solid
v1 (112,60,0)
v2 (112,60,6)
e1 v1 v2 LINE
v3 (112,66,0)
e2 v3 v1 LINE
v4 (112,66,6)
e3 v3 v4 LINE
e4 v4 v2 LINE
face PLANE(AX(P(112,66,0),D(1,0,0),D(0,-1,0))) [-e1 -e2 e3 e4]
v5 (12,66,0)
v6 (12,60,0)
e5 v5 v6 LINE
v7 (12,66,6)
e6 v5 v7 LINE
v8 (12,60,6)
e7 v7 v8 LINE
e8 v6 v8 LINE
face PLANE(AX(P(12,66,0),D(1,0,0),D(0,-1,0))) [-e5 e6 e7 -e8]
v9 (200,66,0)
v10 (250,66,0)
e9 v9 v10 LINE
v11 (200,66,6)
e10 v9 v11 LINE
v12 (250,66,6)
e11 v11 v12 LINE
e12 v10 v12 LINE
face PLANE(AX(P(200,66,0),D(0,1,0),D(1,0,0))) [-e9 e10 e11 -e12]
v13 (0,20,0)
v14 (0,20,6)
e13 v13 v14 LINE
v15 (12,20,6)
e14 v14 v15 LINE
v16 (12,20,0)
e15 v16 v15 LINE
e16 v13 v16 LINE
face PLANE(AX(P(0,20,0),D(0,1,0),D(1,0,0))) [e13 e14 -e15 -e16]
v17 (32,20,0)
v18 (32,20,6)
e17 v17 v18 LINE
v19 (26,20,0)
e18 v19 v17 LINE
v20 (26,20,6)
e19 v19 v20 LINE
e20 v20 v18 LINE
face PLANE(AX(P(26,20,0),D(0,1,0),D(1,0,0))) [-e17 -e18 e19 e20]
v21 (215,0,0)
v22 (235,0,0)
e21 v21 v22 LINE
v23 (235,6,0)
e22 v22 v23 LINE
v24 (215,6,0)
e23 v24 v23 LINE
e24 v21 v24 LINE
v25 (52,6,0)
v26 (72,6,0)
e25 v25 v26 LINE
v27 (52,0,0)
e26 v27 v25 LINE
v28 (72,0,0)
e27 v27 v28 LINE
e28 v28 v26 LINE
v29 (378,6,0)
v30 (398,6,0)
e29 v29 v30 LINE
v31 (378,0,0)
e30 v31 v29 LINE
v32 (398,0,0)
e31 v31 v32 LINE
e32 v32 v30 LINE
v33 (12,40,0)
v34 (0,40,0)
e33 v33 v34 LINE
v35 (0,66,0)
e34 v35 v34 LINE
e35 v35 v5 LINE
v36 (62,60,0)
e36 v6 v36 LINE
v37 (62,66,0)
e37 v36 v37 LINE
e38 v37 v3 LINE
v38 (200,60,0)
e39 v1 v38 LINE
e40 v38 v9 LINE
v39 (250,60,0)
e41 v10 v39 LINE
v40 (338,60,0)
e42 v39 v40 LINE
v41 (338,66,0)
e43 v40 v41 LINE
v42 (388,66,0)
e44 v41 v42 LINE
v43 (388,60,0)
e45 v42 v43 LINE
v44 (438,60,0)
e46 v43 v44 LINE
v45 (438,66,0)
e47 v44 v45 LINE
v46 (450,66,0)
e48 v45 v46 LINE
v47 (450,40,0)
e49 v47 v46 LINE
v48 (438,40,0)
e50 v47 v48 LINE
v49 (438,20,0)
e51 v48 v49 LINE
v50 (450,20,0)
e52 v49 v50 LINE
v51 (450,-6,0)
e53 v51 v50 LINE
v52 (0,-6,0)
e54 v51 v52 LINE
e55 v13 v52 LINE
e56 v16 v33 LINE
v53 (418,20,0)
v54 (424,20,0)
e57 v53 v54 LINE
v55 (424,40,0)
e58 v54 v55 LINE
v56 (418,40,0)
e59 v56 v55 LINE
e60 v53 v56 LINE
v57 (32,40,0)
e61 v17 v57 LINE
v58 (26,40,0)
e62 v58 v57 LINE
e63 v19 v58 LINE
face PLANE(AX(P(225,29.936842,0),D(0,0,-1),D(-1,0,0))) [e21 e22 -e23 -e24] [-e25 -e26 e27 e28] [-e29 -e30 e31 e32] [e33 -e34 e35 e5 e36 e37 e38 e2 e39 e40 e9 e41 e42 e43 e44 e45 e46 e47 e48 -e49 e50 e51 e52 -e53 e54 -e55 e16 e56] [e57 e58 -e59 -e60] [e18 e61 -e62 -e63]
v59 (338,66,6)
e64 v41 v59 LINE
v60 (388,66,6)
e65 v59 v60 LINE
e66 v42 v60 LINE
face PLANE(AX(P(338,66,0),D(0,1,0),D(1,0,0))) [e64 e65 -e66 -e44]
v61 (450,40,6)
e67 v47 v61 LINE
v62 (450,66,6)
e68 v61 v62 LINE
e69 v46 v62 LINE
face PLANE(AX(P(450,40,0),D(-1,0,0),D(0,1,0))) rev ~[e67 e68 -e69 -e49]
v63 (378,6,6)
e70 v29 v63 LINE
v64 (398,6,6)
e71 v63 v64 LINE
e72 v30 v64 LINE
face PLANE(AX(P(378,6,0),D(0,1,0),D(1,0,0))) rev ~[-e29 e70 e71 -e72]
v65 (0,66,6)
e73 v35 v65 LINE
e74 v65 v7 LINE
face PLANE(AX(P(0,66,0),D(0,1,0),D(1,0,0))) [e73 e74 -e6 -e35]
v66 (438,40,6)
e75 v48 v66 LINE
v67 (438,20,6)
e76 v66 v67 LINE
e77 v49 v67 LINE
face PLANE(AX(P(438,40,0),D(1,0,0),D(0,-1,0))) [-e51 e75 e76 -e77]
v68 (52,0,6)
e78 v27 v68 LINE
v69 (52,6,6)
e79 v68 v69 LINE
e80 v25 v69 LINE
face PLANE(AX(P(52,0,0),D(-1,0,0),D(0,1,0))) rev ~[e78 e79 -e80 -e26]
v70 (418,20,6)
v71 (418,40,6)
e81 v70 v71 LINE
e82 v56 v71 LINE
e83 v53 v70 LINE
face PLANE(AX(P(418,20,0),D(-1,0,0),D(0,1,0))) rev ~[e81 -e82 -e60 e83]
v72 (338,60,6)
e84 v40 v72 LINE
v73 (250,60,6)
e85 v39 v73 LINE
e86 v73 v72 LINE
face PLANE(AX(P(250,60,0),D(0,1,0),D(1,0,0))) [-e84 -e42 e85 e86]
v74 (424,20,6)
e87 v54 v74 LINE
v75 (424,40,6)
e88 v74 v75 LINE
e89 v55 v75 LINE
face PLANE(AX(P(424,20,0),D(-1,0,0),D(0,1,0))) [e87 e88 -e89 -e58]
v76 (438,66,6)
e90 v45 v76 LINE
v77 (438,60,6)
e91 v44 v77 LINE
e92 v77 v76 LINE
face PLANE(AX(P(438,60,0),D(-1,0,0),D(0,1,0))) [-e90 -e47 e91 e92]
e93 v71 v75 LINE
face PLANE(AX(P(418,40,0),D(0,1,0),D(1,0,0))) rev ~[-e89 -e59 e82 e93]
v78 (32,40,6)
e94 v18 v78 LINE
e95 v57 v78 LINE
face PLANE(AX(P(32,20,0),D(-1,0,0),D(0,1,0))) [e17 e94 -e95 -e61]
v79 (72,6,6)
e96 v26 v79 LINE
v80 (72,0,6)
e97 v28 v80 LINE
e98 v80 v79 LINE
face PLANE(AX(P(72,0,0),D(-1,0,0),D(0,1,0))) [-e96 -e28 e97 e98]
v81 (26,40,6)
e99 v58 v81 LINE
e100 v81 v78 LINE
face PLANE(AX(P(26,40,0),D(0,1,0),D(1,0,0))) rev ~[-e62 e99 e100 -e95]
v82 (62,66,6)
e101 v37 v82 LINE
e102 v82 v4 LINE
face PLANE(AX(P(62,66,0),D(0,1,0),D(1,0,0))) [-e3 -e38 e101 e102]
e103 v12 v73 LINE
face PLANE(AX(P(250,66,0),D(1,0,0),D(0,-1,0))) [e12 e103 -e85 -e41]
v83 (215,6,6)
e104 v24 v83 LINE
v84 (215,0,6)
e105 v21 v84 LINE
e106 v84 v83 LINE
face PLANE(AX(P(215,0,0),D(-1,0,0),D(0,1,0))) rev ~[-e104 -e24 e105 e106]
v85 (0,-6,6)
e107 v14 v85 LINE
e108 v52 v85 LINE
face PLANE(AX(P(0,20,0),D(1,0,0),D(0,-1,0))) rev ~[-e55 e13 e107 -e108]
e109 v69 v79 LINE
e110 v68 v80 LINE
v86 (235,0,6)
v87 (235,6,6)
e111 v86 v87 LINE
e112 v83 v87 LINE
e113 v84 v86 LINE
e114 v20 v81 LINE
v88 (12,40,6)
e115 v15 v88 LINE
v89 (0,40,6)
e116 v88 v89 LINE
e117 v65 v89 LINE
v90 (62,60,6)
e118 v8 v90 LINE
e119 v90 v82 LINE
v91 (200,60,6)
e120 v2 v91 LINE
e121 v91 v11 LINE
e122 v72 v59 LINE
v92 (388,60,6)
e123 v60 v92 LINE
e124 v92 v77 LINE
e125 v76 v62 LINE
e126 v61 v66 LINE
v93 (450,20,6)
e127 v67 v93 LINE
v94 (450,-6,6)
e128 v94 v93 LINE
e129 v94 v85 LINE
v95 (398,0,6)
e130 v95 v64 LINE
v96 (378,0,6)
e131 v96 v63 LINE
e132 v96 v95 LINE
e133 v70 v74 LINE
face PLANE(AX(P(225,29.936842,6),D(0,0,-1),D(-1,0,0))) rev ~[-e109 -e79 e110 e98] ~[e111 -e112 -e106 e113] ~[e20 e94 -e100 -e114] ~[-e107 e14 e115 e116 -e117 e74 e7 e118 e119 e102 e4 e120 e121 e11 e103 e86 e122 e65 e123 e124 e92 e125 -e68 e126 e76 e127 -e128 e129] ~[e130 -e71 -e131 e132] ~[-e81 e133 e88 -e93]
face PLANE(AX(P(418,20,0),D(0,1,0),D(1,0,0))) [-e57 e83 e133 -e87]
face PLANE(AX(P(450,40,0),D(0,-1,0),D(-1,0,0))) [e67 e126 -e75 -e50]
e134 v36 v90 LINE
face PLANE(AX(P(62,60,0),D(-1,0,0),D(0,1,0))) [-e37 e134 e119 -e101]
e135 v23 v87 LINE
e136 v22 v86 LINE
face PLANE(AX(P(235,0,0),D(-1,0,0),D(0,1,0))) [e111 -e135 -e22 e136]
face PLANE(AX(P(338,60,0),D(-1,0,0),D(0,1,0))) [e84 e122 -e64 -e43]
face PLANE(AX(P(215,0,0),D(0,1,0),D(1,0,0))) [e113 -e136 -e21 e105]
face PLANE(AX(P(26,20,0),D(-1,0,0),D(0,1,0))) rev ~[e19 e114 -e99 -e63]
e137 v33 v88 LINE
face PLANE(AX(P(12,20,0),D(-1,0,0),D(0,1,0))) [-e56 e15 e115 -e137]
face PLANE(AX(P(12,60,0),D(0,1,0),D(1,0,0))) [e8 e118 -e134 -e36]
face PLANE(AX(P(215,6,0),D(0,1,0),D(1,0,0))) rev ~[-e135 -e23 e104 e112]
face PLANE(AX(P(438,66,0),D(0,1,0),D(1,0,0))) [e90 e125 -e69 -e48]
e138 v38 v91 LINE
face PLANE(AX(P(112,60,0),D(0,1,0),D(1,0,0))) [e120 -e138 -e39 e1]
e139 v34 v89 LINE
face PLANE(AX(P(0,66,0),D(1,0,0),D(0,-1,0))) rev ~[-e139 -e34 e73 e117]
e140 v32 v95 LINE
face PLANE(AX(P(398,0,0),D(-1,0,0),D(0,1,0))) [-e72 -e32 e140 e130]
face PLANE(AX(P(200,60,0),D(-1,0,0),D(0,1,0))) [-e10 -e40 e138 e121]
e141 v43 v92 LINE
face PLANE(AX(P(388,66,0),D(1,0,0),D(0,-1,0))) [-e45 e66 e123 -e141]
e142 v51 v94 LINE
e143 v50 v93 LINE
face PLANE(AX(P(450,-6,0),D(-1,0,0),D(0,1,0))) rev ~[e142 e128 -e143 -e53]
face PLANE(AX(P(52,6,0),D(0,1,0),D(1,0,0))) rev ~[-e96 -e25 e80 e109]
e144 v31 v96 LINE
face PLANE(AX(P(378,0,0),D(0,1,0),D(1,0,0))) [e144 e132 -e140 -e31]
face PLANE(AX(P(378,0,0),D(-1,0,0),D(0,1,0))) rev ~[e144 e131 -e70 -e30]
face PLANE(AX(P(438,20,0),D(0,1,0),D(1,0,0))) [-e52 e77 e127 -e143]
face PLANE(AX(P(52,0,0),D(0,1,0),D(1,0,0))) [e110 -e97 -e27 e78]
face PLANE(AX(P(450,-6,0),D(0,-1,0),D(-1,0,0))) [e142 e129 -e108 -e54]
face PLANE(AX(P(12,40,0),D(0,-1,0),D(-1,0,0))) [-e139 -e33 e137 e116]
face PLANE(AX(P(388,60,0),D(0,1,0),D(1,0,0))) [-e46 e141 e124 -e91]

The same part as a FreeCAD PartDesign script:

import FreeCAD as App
import Part
import Sketcher
Q = App.Units.Quantity

doc = App.newDocument("Part")
params = doc.addObject("Spreadsheet::Sheet", "Params")
for row, (alias, value) in enumerate([
    ("sketch1_width", "12 mm"),
    ("sketch1_width2", "450 mm"),
    ("sketch1_width3", "50 mm"),
    ("sketch1_width4", "20 mm"),
    ("sketch1_width5", "6 mm"),
    ("pad1_length", "6 mm"),
], start=1):
    params.set(f"A{row}", alias)
    params.set(f"B{row}", "=" + value)
    params.setAlias(f"B{row}", alias)

body = doc.addObject("PartDesign::Body", "Body")

sketch1 = doc.addObject("Sketcher::SketchObject", "Sketch")
body.addObject(sketch1)
sketch1.AttachmentSupport = (doc.XY_Plane, [""])
sketch1.MapMode = "FlatFace"
sketch1.addGeometry([
    Part.LineSegment(App.Vector(0, 66, 0), App.Vector(0, 40, 0)),
    Part.LineSegment(App.Vector(0, 40, 0), App.Vector(12, 40, 0)),
    Part.LineSegment(App.Vector(12, 40, 0), App.Vector(12, 20, 0)),
    Part.LineSegment(App.Vector(12, 20, 0), App.Vector(0, 20, 0)),
    Part.LineSegment(App.Vector(0, 20, 0), App.Vector(0, -6, 0)),
    Part.LineSegment(App.Vector(0, -6, 0), App.Vector(450, -6, 0)),
    Part.LineSegment(App.Vector(450, -6, 0), App.Vector(450, 20, 0)),
    Part.LineSegment(App.Vector(450, 20, 0), App.Vector(438, 20, 0)),
    Part.LineSegment(App.Vector(438, 20, 0), App.Vector(438, 40, 0)),
    Part.LineSegment(App.Vector(438, 40, 0), App.Vector(450, 40, 0)),
    Part.LineSegment(App.Vector(450, 40, 0), App.Vector(450, 66, 0)),
    Part.LineSegment(App.Vector(450, 66, 0), App.Vector(438, 66, 0)),
    Part.LineSegment(App.Vector(438, 66, 0), App.Vector(438, 60, 0)),
    Part.LineSegment(App.Vector(438, 60, 0), App.Vector(388, 60, 0)),
    Part.LineSegment(App.Vector(388, 60, 0), App.Vector(388, 66, 0)),
    Part.LineSegment(App.Vector(388, 66, 0), App.Vector(338, 66, 0)),
    Part.LineSegment(App.Vector(338, 66, 0), App.Vector(338, 60, 0)),
    Part.LineSegment(App.Vector(338, 60, 0), App.Vector(250, 60, 0)),
    Part.LineSegment(App.Vector(250, 60, 0), App.Vector(250, 66, 0)),
    Part.LineSegment(App.Vector(250, 66, 0), App.Vector(200, 66, 0)),
    Part.LineSegment(App.Vector(200, 66, 0), App.Vector(200, 60, 0)),
    Part.LineSegment(App.Vector(200, 60, 0), App.Vector(112, 60, 0)),
    Part.LineSegment(App.Vector(112, 60, 0), App.Vector(112, 66, 0)),
    Part.LineSegment(App.Vector(112, 66, 0), App.Vector(62, 66, 0)),
    Part.LineSegment(App.Vector(62, 66, 0), App.Vector(62, 60, 0)),
    Part.LineSegment(App.Vector(62, 60, 0), App.Vector(12, 60, 0)),
    Part.LineSegment(App.Vector(12, 60, 0), App.Vector(12, 66, 0)),
    Part.LineSegment(App.Vector(12, 66, 0), App.Vector(0, 66, 0)),
    Part.LineSegment(App.Vector(378, 0, 0), App.Vector(378, 6, 0)),
    Part.LineSegment(App.Vector(378, 6, 0), App.Vector(398, 6, 0)),
    Part.LineSegment(App.Vector(398, 6, 0), App.Vector(398, 0, 0)),
    Part.LineSegment(App.Vector(398, 0, 0), App.Vector(378, 0, 0)),
    Part.LineSegment(App.Vector(215, 0, 0), App.Vector(215, 6, 0)),
    Part.LineSegment(App.Vector(215, 6, 0), App.Vector(235, 6, 0)),
    Part.LineSegment(App.Vector(235, 6, 0), App.Vector(235, 0, 0)),
    Part.LineSegment(App.Vector(235, 0, 0), App.Vector(215, 0, 0)),
    Part.LineSegment(App.Vector(52, 0, 0), App.Vector(52, 6, 0)),
    Part.LineSegment(App.Vector(52, 6, 0), App.Vector(72, 6, 0)),
    Part.LineSegment(App.Vector(72, 6, 0), App.Vector(72, 0, 0)),
    Part.LineSegment(App.Vector(72, 0, 0), App.Vector(52, 0, 0)),
    Part.LineSegment(App.Vector(418, 20, 0), App.Vector(418, 40, 0)),
    Part.LineSegment(App.Vector(418, 40, 0), App.Vector(424, 40, 0)),
    Part.LineSegment(App.Vector(424, 40, 0), App.Vector(424, 20, 0)),
    Part.LineSegment(App.Vector(424, 20, 0), App.Vector(418, 20, 0)),
    Part.LineSegment(App.Vector(26, 20, 0), App.Vector(26, 40, 0)),
    Part.LineSegment(App.Vector(26, 40, 0), App.Vector(32, 40, 0)),
    Part.LineSegment(App.Vector(32, 40, 0), App.Vector(32, 20, 0)),
    Part.LineSegment(App.Vector(32, 20, 0), App.Vector(26, 20, 0)),
], False)
sketch1.addConstraint([
    Sketcher.Constraint("Coincident", 0, 2, 1, 1),
    Sketcher.Constraint("Coincident", 1, 2, 2, 1),
    Sketcher.Constraint("Coincident", 2, 2, 3, 1),
    Sketcher.Constraint("Coincident", 3, 2, 4, 1),
    Sketcher.Constraint("Coincident", 4, 2, 5, 1),
    Sketcher.Constraint("Coincident", 5, 2, 6, 1),
    Sketcher.Constraint("Coincident", 6, 2, 7, 1),
    Sketcher.Constraint("Coincident", 7, 2, 8, 1),
    Sketcher.Constraint("Coincident", 8, 2, 9, 1),
    Sketcher.Constraint("Coincident", 9, 2, 10, 1),
    Sketcher.Constraint("Coincident", 10, 2, 11, 1),
    Sketcher.Constraint("Coincident", 11, 2, 12, 1),
    Sketcher.Constraint("Coincident", 12, 2, 13, 1),
    Sketcher.Constraint("Coincident", 13, 2, 14, 1),
    Sketcher.Constraint("Coincident", 14, 2, 15, 1),
    Sketcher.Constraint("Coincident", 15, 2, 16, 1),
    Sketcher.Constraint("Coincident", 16, 2, 17, 1),
    Sketcher.Constraint("Coincident", 17, 2, 18, 1),
    Sketcher.Constraint("Coincident", 18, 2, 19, 1),
    Sketcher.Constraint("Coincident", 19, 2, 20, 1),
    Sketcher.Constraint("Coincident", 20, 2, 21, 1),
    Sketcher.Constraint("Coincident", 21, 2, 22, 1),
    Sketcher.Constraint("Coincident", 22, 2, 23, 1),
    Sketcher.Constraint("Coincident", 23, 2, 24, 1),
    Sketcher.Constraint("Coincident", 24, 2, 25, 1),
    Sketcher.Constraint("Coincident", 25, 2, 26, 1),
    Sketcher.Constraint("Coincident", 26, 2, 27, 1),
    Sketcher.Constraint("Coincident", 27, 2, 0, 1),
    Sketcher.Constraint("Coincident", 28, 2, 29, 1),
    Sketcher.Constraint("Coincident", 29, 2, 30, 1),
    Sketcher.Constraint("Coincident", 30, 2, 31, 1),
    Sketcher.Constraint("Coincident", 31, 2, 28, 1),
    Sketcher.Constraint("Coincident", 32, 2, 33, 1),
    Sketcher.Constraint("Coincident", 33, 2, 34, 1),
    Sketcher.Constraint("Coincident", 34, 2, 35, 1),
    Sketcher.Constraint("Coincident", 35, 2, 32, 1),
    Sketcher.Constraint("Coincident", 36, 2, 37, 1),
    Sketcher.Constraint("Coincident", 37, 2, 38, 1),
    Sketcher.Constraint("Coincident", 38, 2, 39, 1),
    Sketcher.Constraint("Coincident", 39, 2, 36, 1),
    Sketcher.Constraint("Coincident", 40, 2, 41, 1),
    Sketcher.Constraint("Coincident", 41, 2, 42, 1),
    Sketcher.Constraint("Coincident", 42, 2, 43, 1),
    Sketcher.Constraint("Coincident", 43, 2, 40, 1),
    Sketcher.Constraint("Coincident", 44, 2, 45, 1),
    Sketcher.Constraint("Coincident", 45, 2, 46, 1),
    Sketcher.Constraint("Coincident", 46, 2, 47, 1),
    Sketcher.Constraint("Coincident", 47, 2, 44, 1),
    Sketcher.Constraint("Vertical", 0),
    Sketcher.Constraint("Horizontal", 1),
    Sketcher.Constraint("Vertical", 2),
    Sketcher.Constraint("Horizontal", 3),
    Sketcher.Constraint("Vertical", 4),
    Sketcher.Constraint("Horizontal", 5),
    Sketcher.Constraint("Vertical", 6),
    Sketcher.Constraint("Horizontal", 7),
    Sketcher.Constraint("Vertical", 8),
    Sketcher.Constraint("Horizontal", 9),
    Sketcher.Constraint("Vertical", 10),
    Sketcher.Constraint("Horizontal", 11),
    Sketcher.Constraint("Vertical", 12),
    Sketcher.Constraint("Horizontal", 13),
    Sketcher.Constraint("Vertical", 14),
    Sketcher.Constraint("Horizontal", 15),
    Sketcher.Constraint("Vertical", 16),
    Sketcher.Constraint("Horizontal", 17),
    Sketcher.Constraint("Vertical", 18),
    Sketcher.Constraint("Horizontal", 19),
    Sketcher.Constraint("Vertical", 20),
    Sketcher.Constraint("Horizontal", 21),
    Sketcher.Constraint("Vertical", 22),
    Sketcher.Constraint("Horizontal", 23),
    Sketcher.Constraint("Vertical", 24),
    Sketcher.Constraint("Horizontal", 25),
    Sketcher.Constraint("Vertical", 26),
    Sketcher.Constraint("Horizontal", 27),
    Sketcher.Constraint("Vertical", 28),
    Sketcher.Constraint("Horizontal", 29),
    Sketcher.Constraint("Vertical", 30),
    Sketcher.Constraint("Horizontal", 31),
    Sketcher.Constraint("Vertical", 32),
    Sketcher.Constraint("Horizontal", 33),
    Sketcher.Constraint("Vertical", 34),
    Sketcher.Constraint("Horizontal", 35),
    Sketcher.Constraint("Vertical", 36),
    Sketcher.Constraint("Horizontal", 37),
    Sketcher.Constraint("Vertical", 38),
    Sketcher.Constraint("Horizontal", 39),
    Sketcher.Constraint("Vertical", 40),
    Sketcher.Constraint("Horizontal", 41),
    Sketcher.Constraint("Vertical", 42),
    Sketcher.Constraint("Horizontal", 43),
    Sketcher.Constraint("Vertical", 44),
    Sketcher.Constraint("Horizontal", 45),
    Sketcher.Constraint("Vertical", 46),
    Sketcher.Constraint("Horizontal", 47),
    Sketcher.Constraint("PointOnObject", 0, 2, -2),
    Sketcher.Constraint("PointOnObject", 3, 2, -2),
    Sketcher.Constraint("PointOnObject", 30, 2, -1),
    Sketcher.Constraint("PointOnObject", 34, 2, -1),
    Sketcher.Constraint("PointOnObject", 38, 2, -1),
    Sketcher.Constraint("Horizontal", 3, 2, 6, 2),
    Sketcher.Constraint("Horizontal", 1, 2, 8, 2),
    Sketcher.Constraint("Horizontal", 11, 2, 14, 2),
    Sketcher.Constraint("Horizontal", 13, 2, 16, 2),
    Sketcher.Constraint("Horizontal", 15, 2, 18, 2),
    Sketcher.Constraint("Horizontal", 17, 2, 20, 2),
    Sketcher.Constraint("Horizontal", 19, 2, 22, 2),
    Sketcher.Constraint("Horizontal", 21, 2, 24, 2),
    Sketcher.Constraint("Horizontal", 23, 2, 26, 2),
    Sketcher.Constraint("Horizontal", 29, 2, 32, 2),
    Sketcher.Constraint("Horizontal", 33, 2, 36, 2),
    Sketcher.Constraint("Horizontal", 9, 2, 40, 2),
    Sketcher.Constraint("Horizontal", 7, 2, 42, 2),
    Sketcher.Constraint("Horizontal", 41, 2, 44, 2),
    Sketcher.Constraint("Horizontal", 43, 2, 46, 2),
    Sketcher.Constraint("Vertical", 6, 2, 9, 2),
    Sketcher.Constraint("Vertical", 8, 2, 11, 2),
    Sketcher.Constraint("Vertical", 2, 2, 25, 2),
    Sketcher.Constraint("Equal", 3, 7),
    Sketcher.Constraint("Equal", 13, 15),
    Sketcher.Constraint("Equal", 15, 19),
    Sketcher.Constraint("Equal", 17, 21),
    Sketcher.Constraint("Equal", 19, 23),
    Sketcher.Constraint("Equal", 23, 25),
    Sketcher.Constraint("Equal", 31, 33),
    Sketcher.Constraint("Equal", 35, 37),
    Sketcher.Constraint("Equal", 43, 45),
    Sketcher.Constraint("Equal", 39, 2),
    Sketcher.Constraint("Equal", 0, 4),
    Sketcher.Constraint("Equal", 47, 12),
    Sketcher.Constraint("Equal", 26, 28),
    Sketcher.Constraint("DistanceX", 1, 1, 1, 2, Q("12 mm")),
    Sketcher.Constraint("DistanceX", 5, 1, 5, 2, Q("450 mm")),
    Sketcher.Constraint("DistanceX", 13, 2, 13, 1, Q("50 mm")),
    Sketcher.Constraint("DistanceX", 29, 1, 29, 2, Q("20 mm")),
    Sketcher.Constraint("DistanceX", 41, 1, 41, 2, Q("6 mm")),
    Sketcher.Constraint("DistanceY", 0, 2, 0, 1, Q("26 mm")),
    Sketcher.Constraint("DistanceY", -1, 1, 0, 2, Q("40 mm")),
    Sketcher.Constraint("DistanceX", -1, 1, 28, 2, Q("378 mm")),
    Sketcher.Constraint("DistanceX", -1, 1, 32, 2, Q("215 mm")),
    Sketcher.Constraint("DistanceX", -1, 1, 36, 2, Q("52 mm")),
    Sketcher.Constraint("DistanceX", -1, 1, 40, 2, Q("418 mm")),
    Sketcher.Constraint("DistanceX", -1, 1, 44, 2, Q("26 mm")),
])
sketch1.setExpression("Constraints[132]", "Params.sketch1_width")
sketch1.setExpression("Constraints[133]", "Params.sketch1_width2")
sketch1.setExpression("Constraints[134]", "Params.sketch1_width3")
sketch1.setExpression("Constraints[135]", "Params.sketch1_width4")
sketch1.setExpression("Constraints[136]", "Params.sketch1_width5")
pad1 = doc.addObject("PartDesign::Pad", "Pad")
body.addObject(pad1)
pad1.Profile = sketch1
pad1.setExpression("Length", "Params.pad1_length")

doc.recompute()
